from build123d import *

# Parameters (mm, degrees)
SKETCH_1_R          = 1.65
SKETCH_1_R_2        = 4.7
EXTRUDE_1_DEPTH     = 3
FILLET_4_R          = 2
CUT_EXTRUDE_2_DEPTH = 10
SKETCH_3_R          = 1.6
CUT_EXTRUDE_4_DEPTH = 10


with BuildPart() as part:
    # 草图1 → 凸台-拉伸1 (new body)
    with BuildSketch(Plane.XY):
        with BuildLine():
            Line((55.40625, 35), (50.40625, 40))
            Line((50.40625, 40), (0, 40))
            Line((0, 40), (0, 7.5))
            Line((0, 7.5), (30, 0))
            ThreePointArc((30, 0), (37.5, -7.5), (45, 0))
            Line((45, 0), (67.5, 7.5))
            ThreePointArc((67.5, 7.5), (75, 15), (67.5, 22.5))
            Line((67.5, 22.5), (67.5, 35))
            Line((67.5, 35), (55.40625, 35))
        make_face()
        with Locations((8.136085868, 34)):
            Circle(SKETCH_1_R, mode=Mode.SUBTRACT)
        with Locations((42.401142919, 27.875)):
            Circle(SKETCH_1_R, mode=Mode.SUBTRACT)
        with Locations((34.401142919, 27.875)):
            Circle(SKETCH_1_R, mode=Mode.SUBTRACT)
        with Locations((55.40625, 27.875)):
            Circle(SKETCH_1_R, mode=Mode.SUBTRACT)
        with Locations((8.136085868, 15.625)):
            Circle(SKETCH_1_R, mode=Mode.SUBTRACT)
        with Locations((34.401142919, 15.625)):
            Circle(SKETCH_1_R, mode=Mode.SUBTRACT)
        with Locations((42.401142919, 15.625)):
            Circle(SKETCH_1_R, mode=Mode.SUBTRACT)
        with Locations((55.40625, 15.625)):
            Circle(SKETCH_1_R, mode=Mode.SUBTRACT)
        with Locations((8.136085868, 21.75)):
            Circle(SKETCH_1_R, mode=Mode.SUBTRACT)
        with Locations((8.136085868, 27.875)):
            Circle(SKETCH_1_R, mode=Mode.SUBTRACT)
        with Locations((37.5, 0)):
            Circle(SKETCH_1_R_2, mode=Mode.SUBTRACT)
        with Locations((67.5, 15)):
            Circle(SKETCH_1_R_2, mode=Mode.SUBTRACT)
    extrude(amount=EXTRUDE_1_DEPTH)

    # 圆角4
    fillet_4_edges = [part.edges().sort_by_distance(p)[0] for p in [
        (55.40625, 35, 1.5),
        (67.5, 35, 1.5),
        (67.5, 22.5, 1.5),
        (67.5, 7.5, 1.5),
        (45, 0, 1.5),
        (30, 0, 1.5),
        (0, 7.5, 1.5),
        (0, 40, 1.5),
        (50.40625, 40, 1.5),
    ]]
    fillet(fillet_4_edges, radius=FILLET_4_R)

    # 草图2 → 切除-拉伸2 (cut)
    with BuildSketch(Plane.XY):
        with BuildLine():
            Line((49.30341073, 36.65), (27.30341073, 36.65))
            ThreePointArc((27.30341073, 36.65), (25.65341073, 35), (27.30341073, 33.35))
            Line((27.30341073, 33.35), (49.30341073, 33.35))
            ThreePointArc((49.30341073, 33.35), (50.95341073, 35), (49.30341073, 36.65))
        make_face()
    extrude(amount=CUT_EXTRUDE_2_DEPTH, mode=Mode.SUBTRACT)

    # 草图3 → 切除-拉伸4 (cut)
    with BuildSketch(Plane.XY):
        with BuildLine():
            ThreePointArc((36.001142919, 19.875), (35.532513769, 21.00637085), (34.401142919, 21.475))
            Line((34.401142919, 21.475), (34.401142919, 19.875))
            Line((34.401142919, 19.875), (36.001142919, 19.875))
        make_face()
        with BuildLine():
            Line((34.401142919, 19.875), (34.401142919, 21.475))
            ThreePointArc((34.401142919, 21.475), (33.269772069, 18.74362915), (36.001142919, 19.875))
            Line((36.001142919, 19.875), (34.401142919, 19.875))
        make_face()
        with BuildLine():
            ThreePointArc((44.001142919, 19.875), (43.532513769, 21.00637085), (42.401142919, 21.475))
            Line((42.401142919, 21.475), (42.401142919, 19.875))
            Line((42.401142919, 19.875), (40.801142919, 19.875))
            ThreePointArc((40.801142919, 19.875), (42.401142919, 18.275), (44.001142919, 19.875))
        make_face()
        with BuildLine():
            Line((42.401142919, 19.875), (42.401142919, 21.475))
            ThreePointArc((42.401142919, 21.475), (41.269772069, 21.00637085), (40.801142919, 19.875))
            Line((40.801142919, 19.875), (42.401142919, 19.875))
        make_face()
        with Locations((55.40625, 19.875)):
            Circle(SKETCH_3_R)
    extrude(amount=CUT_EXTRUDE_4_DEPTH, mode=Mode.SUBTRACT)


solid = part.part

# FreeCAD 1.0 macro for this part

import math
import FreeCAD as App
import Part
import Sketcher
Q = App.Units.Quantity


def edges_at(feature, points):
    """Names of the edges that pass closest to the given points."""
    edges = feature.Shape.Edges
    near = lambda p: min(range(len(edges)), key=lambda i: edges[i].distToShape(Part.Vertex(*p))[0])
    return sorted({f"Edge{near(p) + 1}" for p in points})

doc = App.newDocument("Part")
params = doc.addObject("Spreadsheet::Sheet", "Params")
for row, (alias, value) in enumerate([
    ("sketch1_diameter", "9.4 mm"),
    ("sketch1_diameter2", "3.3 mm"),
    ("sketch1_radius", "7.5 mm"),
    ("sketch1_height", "32.5 mm"),
    ("sketch1_height2", "12.5 mm"),
    ("pad1_length", "3 mm"),
    ("fillet_radius", "2 mm"),
    ("sketch2_width", "22 mm"),
    ("sketch2_radius", "1.65 mm"),
    ("pocket1_length", "10 mm"),
    ("sketch3_diameter", "3.2 mm"),
    ("pocket2_length", "10 mm"),
], start=1):
    params.set(f"A{row}", alias)
    params.set(f"B{row}", "=" + value)
    params.setAlias(f"B{row}", alias)

body = doc.addObject("PartDesign::Body", "Body")

# Sketch on XY plane
sketch1 = body.newObject("Sketcher::SketchObject", "Sketch")
sketch1.AttachmentSupport = (doc.getObject("XY_Plane"), [""])
sketch1.MapMode = "FlatFace"
sketch1.addGeometry(Part.LineSegment(App.Vector(55.4, 35, 0), App.Vector(50.4, 40, 0)), False)
sketch1.addGeometry(Part.LineSegment(App.Vector(50.4, 40, 0), App.Vector(0, 40, 0)), False)
sketch1.addGeometry(Part.LineSegment(App.Vector(0, 40, 0), App.Vector(0, 7.5, 0)), False)
sketch1.addGeometry(Part.LineSegment(App.Vector(0, 7.5, 0), App.Vector(30, 0, 0)), False)
sketch1.addGeometry(Part.ArcOfCircle(Part.Circle(App.Vector(37.5, 0, 0), App.Vector(0, 0, 1), 7.5), math.radians(180), math.radians(360)), False)
sketch1.addGeometry(Part.LineSegment(App.Vector(45, 0, 0), App.Vector(67.5, 7.5, 0)), False)
sketch1.addGeometry(Part.ArcOfCircle(Part.Circle(App.Vector(67.5, 15, 0), App.Vector(0, 0, 1), 7.5), math.radians(-90), math.radians(90)), False)
sketch1.addGeometry(Part.LineSegment(App.Vector(67.5, 22.5, 0), App.Vector(67.5, 35, 0)), False)
sketch1.addGeometry(Part.LineSegment(App.Vector(67.5, 35, 0), App.Vector(55.4, 35, 0)), False)
sketch1.addGeometry(Part.Circle(App.Vector(37.5, 0, 0), App.Vector(0, 0, 1), 4.7), False)
sketch1.addGeometry(Part.Circle(App.Vector(67.5, 15, 0), App.Vector(0, 0, 1), 4.7), False)
sketch1.addGeometry(Part.Circle(App.Vector(8.1, 15.6, 0), App.Vector(0, 0, 1), 1.6), False)
sketch1.addGeometry(Part.Circle(App.Vector(8.1, 21.8, 0), App.Vector(0, 0, 1), 1.6), False)
sketch1.addGeometry(Part.Circle(App.Vector(34.4, 15.6, 0), App.Vector(0, 0, 1), 1.6), False)
sketch1.addGeometry(Part.Circle(App.Vector(8.1, 27.9, 0), App.Vector(0, 0, 1), 1.6), False)
sketch1.addGeometry(Part.Circle(App.Vector(8.1, 34, 0), App.Vector(0, 0, 1), 1.6), False)
sketch1.addGeometry(Part.Circle(App.Vector(34.4, 27.9, 0), App.Vector(0, 0, 1), 1.6), False)
sketch1.addGeometry(Part.Circle(App.Vector(42.4, 15.6, 0), App.Vector(0, 0, 1), 1.6), False)
sketch1.addGeometry(Part.Circle(App.Vector(55.4, 15.6, 0), App.Vector(0, 0, 1), 1.6), False)
sketch1.addGeometry(Part.Circle(App.Vector(42.4, 27.9, 0), App.Vector(0, 0, 1), 1.6), False)
sketch1.addGeometry(Part.Circle(App.Vector(55.4, 27.9, 0), App.Vector(0, 0, 1), 1.6), False)
sketch1.addConstraint(Sketcher.Constraint("Coincident", 0, 2, 1, 1))
sketch1.addConstraint(Sketcher.Constraint("Coincident", 1, 2, 2, 1))
sketch1.addConstraint(Sketcher.Constraint("Coincident", 2, 2, 3, 1))
sketch1.addConstraint(Sketcher.Constraint("Coincident", 3, 2, 4, 1))
sketch1.addConstraint(Sketcher.Constraint("Coincident", 4, 2, 5, 1))
sketch1.addConstraint(Sketcher.Constraint("Coincident", 5, 2, 6, 1))
sketch1.addConstraint(Sketcher.Constraint("Coincident", 6, 2, 7, 1))
sketch1.addConstraint(Sketcher.Constraint("Coincident", 7, 2, 8, 1))
sketch1.addConstraint(Sketcher.Constraint("Coincident", 8, 2, 0, 1))
sketch1.addConstraint(Sketcher.Constraint("Horizontal", 1))
sketch1.addConstraint(Sketcher.Constraint("Vertical", 2))
sketch1.addConstraint(Sketcher.Constraint("Vertical", 7))
sketch1.addConstraint(Sketcher.Constraint("Horizontal", 8))
sketch1.addConstraint(Sketcher.Constraint("Coincident", 9, 3, 4, 3))
sketch1.addConstraint(Sketcher.Constraint("Coincident", 10, 3, 6, 3))
sketch1.addConstraint(Sketcher.Constraint("Equal", 4, 6))
sketch1.addConstraint(Sketcher.Constraint("Equal", 9, 10))
sketch1.addConstraint(Sketcher.Constraint("Equal", 11, 12))
sketch1.addConstraint(Sketcher.Constraint("Equal", 12, 13))
sketch1.addConstraint(Sketcher.Constraint("Equal", 13, 14))
sketch1.addConstraint(Sketcher.Constraint("Equal", 14, 15))
sketch1.addConstraint(Sketcher.Constraint("Equal", 15, 16))
sketch1.addConstraint(Sketcher.Constraint("Equal", 16, 17))
sketch1.addConstraint(Sketcher.Constraint("Equal", 17, 18))
sketch1.addConstraint(Sketcher.Constraint("Equal", 18, 19))
sketch1.addConstraint(Sketcher.Constraint("Equal", 19, 20))
sketch1.addConstraint(Sketcher.Constraint("PointOnObject", 4, 3, -1))
sketch1.addConstraint(Sketcher.Constraint("PointOnObject", 1, 2, -2))
sketch1.addConstraint(Sketcher.Constraint("PointOnObject", 3, 2, -1))
sketch1.addConstraint(Sketcher.Constraint("PointOnObject", 4, 2, -1))
sketch1.addConstraint(Sketcher.Constraint("Horizontal", 11, 3, 13, 3))
sketch1.addConstraint(Sketcher.Constraint("Horizontal", 14, 3, 16, 3))
sketch1.addConstraint(Sketcher.Constraint("Horizontal", 13, 3, 17, 3))
sketch1.addConstraint(Sketcher.Constraint("Horizontal", 17, 3, 18, 3))
sketch1.addConstraint(Sketcher.Constraint("Horizontal", 16, 3, 19, 3))
sketch1.addConstraint(Sketcher.Constraint("Horizontal", 19, 3, 20, 3))
sketch1.addConstraint(Sketcher.Constraint("Horizontal", 2, 2, 5, 2))
sketch1.addConstraint(Sketcher.Constraint("Vertical", 11, 3, 12, 3))
sketch1.addConstraint(Sketcher.Constraint("Vertical", 12, 3, 14, 3))
sketch1.addConstraint(Sketcher.Constraint("Vertical", 14, 3, 15, 3))
sketch1.addConstraint(Sketcher.Constraint("Vertical", 13, 3, 16, 3))
sketch1.addConstraint(Sketcher.Constraint("Vertical", 17, 3, 19, 3))
sketch1.addConstraint(Sketcher.Constraint("Vertical", 18, 3, 20, 3))
sketch1.addConstraint(Sketcher.Constraint("Vertical", 10, 3, 5, 2))
sketch1.addConstraint(Sketcher.Constraint("Vertical", 5, 2, 6, 2))
sketch1.addConstraint(Sketcher.Constraint("Vertical", 20, 3, 8, 2))
sketch1.addConstraint(Sketcher.Constraint("Diameter", 9, 9.4))
sketch1.addConstraint(Sketcher.Constraint("Diameter", 11, 3.3))
sketch1.addConstraint(Sketcher.Constraint("Radius", 4, 7.5))
sketch1.addConstraint(Sketcher.Constraint("Angle", 0, Q("135 deg")))
sketch1.addConstraint(Sketcher.Constraint("DistanceY", 2, 2, 2, 1, 32.5))
sketch1.addConstraint(Sketcher.Constraint("DistanceY", 7, 1, 7, 2, 12.5))
sketch1.addConstraint(Sketcher.Constraint("DistanceY", -1, 1, 6, 3, 15.0))
sketch1.addConstraint(Sketcher.Constraint("DistanceY", -1, 1, 15, 3, 34.0))
sketch1.addConstraint(Sketcher.Constraint("DistanceX", -1, 1, 3, 2, 30.0))
sketch1.addConstraint(Sketcher.Constraint("DistanceX", 4, 3, 6, 3, 30.0))
sketch1.addConstraint(Sketcher.Constraint("DistanceX", 13, 3, 17, 3, 8.0))
sketch1.addConstraint(Sketcher.Constraint("DistanceY", -1, 1, 12, 3, 21.75))
sketch1.addConstraint(Sketcher.Constraint("DistanceY", 11, 3, 14, 3, 12.25))
sketch1.addConstraint(Sketcher.Constraint("DistanceY", -1, 1, 11, 3, 15.625))
sketch1.addConstraint(Sketcher.Constraint("DistanceX", 1, 2, 1, 1, 50.40625))
sketch1.addConstraint(Sketcher.Constraint("DistanceX", -1, 1, 11, 3, 8.136086))
sketch1.addConstraint(Sketcher.Constraint("DistanceX", -1, 1, 13, 3, 34.401143))
sketch1.setExpression("Constraints[46]", "Params.sketch1_diameter")
sketch1.setExpression("Constraints[47]", "Params.sketch1_diameter2")
sketch1.setExpression("Constraints[48]", "Params.sketch1_radius")
sketch1.setExpression("Constraints[50]", "Params.sketch1_height")
sketch1.setExpression("Constraints[51]", "Params.sketch1_height2")
pad1 = body.newObject("PartDesign::Pad", "Pad")
pad1.Profile = sketch1
pad1.setExpression("Length", "Params.pad1_length")
doc.recompute()

fillet = body.newObject("PartDesign::Fillet", "Fillet")
fillet.Base = (pad1, edges_at(pad1, [
    (55.406, 35, 1.5),
    (67.5, 35, 1.5),
    (67.5, 22.5, 1.5),
    (67.5, 7.5, 1.5),
    (45, 0, 1.5),
    (30, 0, 1.5),
    (0, 7.5, 1.5),
    (0, 40, 1.5),
    (50.406, 40, 1.5),
]))
fillet.setExpression("Radius", "Params.fillet_radius")

# Sketch on XY plane
sketch2 = body.newObject("Sketcher::SketchObject", "Sketch001")
sketch2.AttachmentSupport = (doc.getObject("XY_Plane"), [""])
sketch2.MapMode = "FlatFace"
sketch2.addGeometry(Part.LineSegment(App.Vector(49.3, 36.6, 0), App.Vector(27.3, 36.6, 0)), False)
sketch2.addGeometry(Part.ArcOfCircle(Part.Circle(App.Vector(27.3, 35, 0), App.Vector(0, 0, 1), 1.6), math.radians(90), math.radians(270)), False)
sketch2.addGeometry(Part.LineSegment(App.Vector(27.3, 33.4, 0), App.Vector(49.3, 33.4, 0)), False)
sketch2.addGeometry(Part.ArcOfCircle(Part.Circle(App.Vector(49.3, 35, 0), App.Vector(0, 0, 1), 1.6), math.radians(-90), math.radians(90)), False)
sketch2.addConstraint(Sketcher.Constraint("Tangent", 0, 2, 1, 1))
sketch2.addConstraint(Sketcher.Constraint("Tangent", 1, 2, 2, 1))
sketch2.addConstraint(Sketcher.Constraint("Tangent", 2, 2, 3, 1))
sketch2.addConstraint(Sketcher.Constraint("Tangent", 3, 2, 0, 1))
sketch2.addConstraint(Sketcher.Constraint("Horizontal", 0))
sketch2.addConstraint(Sketcher.Constraint("Horizontal", 2))
sketch2.addConstraint(Sketcher.Constraint("DistanceX", 0, 2, 0, 1, 22.0))
sketch2.addConstraint(Sketcher.Constraint("Radius", 1, 1.65))
sketch2.addConstraint(Sketcher.Constraint("DistanceY", -1, 1, 1, 3, 35.0))
sketch2.addConstraint(Sketcher.Constraint("DistanceX", -1, 1, 1, 3, 27.303411))
sketch2.setExpression("Constraints[6]", "Params.sketch2_width")
sketch2.setExpression("Constraints[7]", "Params.sketch2_radius")
pocket1 = body.newObject("PartDesign::Pocket", "Pocket")
pocket1.Profile = sketch2
pocket1.setExpression("Length", "Params.pocket1_length")
pocket1.Reversed = True

# Sketch on XY plane
sketch3 = body.newObject("Sketcher::SketchObject", "Sketch002")
sketch3.AttachmentSupport = (doc.getObject("XY_Plane"), [""])
sketch3.MapMode = "FlatFace"
sketch3.addGeometry(Part.ArcOfCircle(Part.Circle(App.Vector(34.4, 19.9, 0), App.Vector(0, 0, 1), 1.6), math.radians(0), math.radians(90)), False)
sketch3.addGeometry(Part.ArcOfCircle(Part.Circle(App.Vector(34.4, 19.9, 0), App.Vector(0, 0, 1), 1.6), math.radians(90), math.radians(360)), False)
sketch3.addGeometry(Part.ArcOfCircle(Part.Circle(App.Vector(42.4, 19.9, 0), App.Vector(0, 0, 1), 1.6), math.radians(0), math.radians(90)), False)
sketch3.addGeometry(Part.ArcOfCircle(Part.Circle(App.Vector(42.4, 19.9, 0), App.Vector(0, 0, 1), 1.6), math.radians(90), math.radians(180)), False)
sketch3.addGeometry(Part.ArcOfCircle(Part.Circle(App.Vector(42.4, 19.9, 0), App.Vector(0, 0, 1), 1.6), math.radians(180), math.radians(360)), False)
sketch3.addGeometry(Part.Circle(App.Vector(55.4, 19.9, 0), App.Vector(0, 0, 1), 1.6), False)
sketch3.addConstraint(Sketcher.Constraint("Tangent", 0, 1, 1, 2))
sketch3.addConstraint(Sketcher.Constraint("Coincident", 1, 1, 0, 2))
sketch3.addConstraint(Sketcher.Constraint("Tangent", 2, 2, 3, 1))
sketch3.addConstraint(Sketcher.Constraint("Tangent", 3, 2, 4, 1))
sketch3.addConstraint(Sketcher.Constraint("Tangent", 4, 2, 2, 1))
sketch3.addConstraint(Sketcher.Constraint("Equal", 1, 2))
sketch3.addConstraint(Sketcher.Constraint("Equal", 4, 5))
sketch3.addConstraint(Sketcher.Constraint("Horizontal", 1, 3, 2, 3))
sketch3.addConstraint(Sketcher.Constraint("Horizontal", 4, 3, 5, 3))
sketch3.addConstraint(Sketcher.Constraint("Horizontal", 5, 3, 0, 1))
sketch3.addConstraint(Sketcher.Constraint("Horizontal", 0, 1, 3, 2))
sketch3.addConstraint(Sketcher.Constraint("Horizontal", 3, 2, 4, 2))
sketch3.addConstraint(Sketcher.Constraint("Vertical", 0, 3, 1, 1))
sketch3.addConstraint(Sketcher.Constraint("Vertical", 4, 3, 2, 2))
sketch3.addConstraint(Sketcher.Constraint("Diameter", 5, 3.2))
sketch3.addConstraint(Sketcher.Constraint("DistanceX", 0, 3, 2, 3, 8.0))
sketch3.addConstraint(Sketcher.Constraint("DistanceY", -1, 1, 0, 3, 19.875))
sketch3.addConstraint(Sketcher.Constraint("DistanceX", -1, 1, 5, 3, 55.40625))
sketch3.addConstraint(Sketcher.Constraint("DistanceX", -1, 1, 0, 3, 34.401143))
sketch3.setExpression("Constraints[14]", "Params.sketch3_diameter")
pocket2 = body.newObject("PartDesign::Pocket", "Pocket001")
pocket2.Profile = sketch3
pocket2.setExpression("Length", "Params.pocket2_length")
pocket2.Reversed = True

doc.recompute()
